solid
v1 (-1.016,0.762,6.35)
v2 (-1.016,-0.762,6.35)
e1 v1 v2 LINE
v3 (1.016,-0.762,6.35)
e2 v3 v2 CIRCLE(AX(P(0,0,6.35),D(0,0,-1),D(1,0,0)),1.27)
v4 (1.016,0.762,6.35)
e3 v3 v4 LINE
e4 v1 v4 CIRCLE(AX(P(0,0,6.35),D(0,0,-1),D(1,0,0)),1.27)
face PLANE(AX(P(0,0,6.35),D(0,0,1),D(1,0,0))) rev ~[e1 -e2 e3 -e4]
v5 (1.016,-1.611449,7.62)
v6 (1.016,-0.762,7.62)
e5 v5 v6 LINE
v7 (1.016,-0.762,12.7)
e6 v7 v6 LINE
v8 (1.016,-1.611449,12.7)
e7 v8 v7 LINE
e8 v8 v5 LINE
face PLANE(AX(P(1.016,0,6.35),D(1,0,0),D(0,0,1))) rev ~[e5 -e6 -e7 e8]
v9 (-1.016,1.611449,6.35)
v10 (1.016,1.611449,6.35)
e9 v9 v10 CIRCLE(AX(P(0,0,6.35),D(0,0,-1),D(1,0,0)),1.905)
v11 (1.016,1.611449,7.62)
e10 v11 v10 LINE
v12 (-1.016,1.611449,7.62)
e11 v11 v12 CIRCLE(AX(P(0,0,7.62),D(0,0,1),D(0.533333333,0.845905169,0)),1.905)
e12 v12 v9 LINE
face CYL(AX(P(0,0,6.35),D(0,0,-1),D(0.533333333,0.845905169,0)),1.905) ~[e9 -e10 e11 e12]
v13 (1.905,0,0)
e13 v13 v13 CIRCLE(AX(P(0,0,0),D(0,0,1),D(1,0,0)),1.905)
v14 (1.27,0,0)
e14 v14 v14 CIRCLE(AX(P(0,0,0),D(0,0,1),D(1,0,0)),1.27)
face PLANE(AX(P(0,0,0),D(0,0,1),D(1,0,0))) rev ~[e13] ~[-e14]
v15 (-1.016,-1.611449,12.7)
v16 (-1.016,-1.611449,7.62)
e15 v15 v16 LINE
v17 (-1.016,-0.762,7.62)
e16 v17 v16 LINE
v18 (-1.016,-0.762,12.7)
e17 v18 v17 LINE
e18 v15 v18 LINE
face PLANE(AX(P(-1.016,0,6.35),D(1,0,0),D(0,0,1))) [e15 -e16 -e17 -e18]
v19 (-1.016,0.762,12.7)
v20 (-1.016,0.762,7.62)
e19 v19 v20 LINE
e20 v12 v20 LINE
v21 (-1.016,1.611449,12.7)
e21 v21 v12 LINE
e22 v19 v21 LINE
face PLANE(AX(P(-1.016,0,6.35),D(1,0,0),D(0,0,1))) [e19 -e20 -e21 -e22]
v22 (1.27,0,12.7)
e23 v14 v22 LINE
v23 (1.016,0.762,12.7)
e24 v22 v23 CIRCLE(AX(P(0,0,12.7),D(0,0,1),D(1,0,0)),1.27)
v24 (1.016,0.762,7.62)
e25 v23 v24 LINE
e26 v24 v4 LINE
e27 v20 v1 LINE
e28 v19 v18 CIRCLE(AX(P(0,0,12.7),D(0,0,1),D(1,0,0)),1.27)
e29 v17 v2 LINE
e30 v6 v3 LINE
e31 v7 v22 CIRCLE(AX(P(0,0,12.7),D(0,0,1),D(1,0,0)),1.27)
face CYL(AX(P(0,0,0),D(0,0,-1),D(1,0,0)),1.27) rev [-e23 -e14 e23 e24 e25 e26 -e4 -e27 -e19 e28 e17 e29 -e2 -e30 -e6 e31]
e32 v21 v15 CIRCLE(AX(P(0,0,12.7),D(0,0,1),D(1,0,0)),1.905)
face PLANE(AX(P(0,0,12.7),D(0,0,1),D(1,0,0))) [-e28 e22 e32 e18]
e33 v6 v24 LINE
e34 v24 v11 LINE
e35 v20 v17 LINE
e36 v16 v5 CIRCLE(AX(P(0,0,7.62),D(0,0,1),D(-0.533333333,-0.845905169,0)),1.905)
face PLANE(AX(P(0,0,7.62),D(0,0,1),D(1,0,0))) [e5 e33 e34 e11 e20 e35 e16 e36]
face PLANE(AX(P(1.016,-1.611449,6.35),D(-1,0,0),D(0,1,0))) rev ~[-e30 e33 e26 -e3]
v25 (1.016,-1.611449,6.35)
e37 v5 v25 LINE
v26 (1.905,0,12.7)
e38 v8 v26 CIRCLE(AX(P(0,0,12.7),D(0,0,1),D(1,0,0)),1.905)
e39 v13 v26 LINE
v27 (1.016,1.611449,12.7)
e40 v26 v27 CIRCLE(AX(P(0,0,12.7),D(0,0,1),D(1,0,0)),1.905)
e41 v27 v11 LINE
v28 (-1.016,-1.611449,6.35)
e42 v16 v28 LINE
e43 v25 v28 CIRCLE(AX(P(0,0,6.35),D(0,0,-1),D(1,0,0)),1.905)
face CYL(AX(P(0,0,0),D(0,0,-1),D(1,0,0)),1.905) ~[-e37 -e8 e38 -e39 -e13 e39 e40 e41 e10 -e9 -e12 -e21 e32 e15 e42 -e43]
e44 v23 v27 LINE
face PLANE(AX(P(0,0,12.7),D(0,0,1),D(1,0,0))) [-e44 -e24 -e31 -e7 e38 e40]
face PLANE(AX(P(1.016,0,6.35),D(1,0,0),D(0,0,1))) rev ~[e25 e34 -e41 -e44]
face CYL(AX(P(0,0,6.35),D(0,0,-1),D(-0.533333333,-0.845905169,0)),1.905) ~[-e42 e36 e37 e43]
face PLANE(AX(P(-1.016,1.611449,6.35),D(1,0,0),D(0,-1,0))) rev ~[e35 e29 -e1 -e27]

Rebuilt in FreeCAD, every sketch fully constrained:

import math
import FreeCAD as App
import Part
import Sketcher
Q = App.Units.Quantity

doc = App.newDocument("Part")
body = doc.addObject("PartDesign::Body", "Body")

# Sketch on XY plane
sketch1 = body.newObject("Sketcher::SketchObject", "Sketch")
sketch1.AttachmentSupport = (doc.getObject("XY_Plane"), [""])
sketch1.MapMode = "FlatFace"
sketch1.addGeometry(Part.Circle(App.Vector(0, 0, 0), App.Vector(0, 0, 1), 1.9), False)
sketch1.addGeometry(Part.Circle(App.Vector(0, 0, 0), App.Vector(0, 0, 1), 1.3), False)
sketch1.addConstraint(Sketcher.Constraint("Coincident", 0, 3, -1, 1))
sketch1.addConstraint(Sketcher.Constraint("Coincident", 1, 3, -1, 1))
sketch1.addConstraint(Sketcher.Constraint("Diameter", 1, Q("0.1 in")))
sketch1.addConstraint(Sketcher.Constraint("Diameter", 0, Q("0.15 in")))
pad1 = body.newObject("PartDesign::Pad", "Pad")
pad1.Profile = sketch1
pad1.Length = Q("0.5 in")

# Sketch on XZ plane
sketch2 = body.newObject("Sketcher::SketchObject", "Sketch001")
sketch2.AttachmentSupport = (doc.getObject("XZ_Plane"), [""])
sketch2.MapMode = "FlatFace"
sketch2.addGeometry(Part.LineSegment(App.Vector(-1, 20.1, 0), App.Vector(-1, 6.3, 0)), False)
sketch2.addGeometry(Part.LineSegment(App.Vector(-1, 6.3, 0), App.Vector(1, 6.3, 0)), False)
sketch2.addGeometry(Part.LineSegment(App.Vector(1, 6.3, 0), App.Vector(1, 20.1, 0)), False)
sketch2.addGeometry(Part.LineSegment(App.Vector(1, 20.1, 0), App.Vector(-1, 20.1, 0)), False)
sketch2.addConstraint(Sketcher.Constraint("Coincident", 0, 2, 1, 1))
sketch2.addConstraint(Sketcher.Constraint("Coincident", 1, 2, 2, 1))
sketch2.addConstraint(Sketcher.Constraint("Coincident", 2, 2, 3, 1))
sketch2.addConstraint(Sketcher.Constraint("Coincident", 3, 2, 0, 1))
sketch2.addConstraint(Sketcher.Constraint("Vertical", 0))
sketch2.addConstraint(Sketcher.Constraint("Horizontal", 1))
sketch2.addConstraint(Sketcher.Constraint("Vertical", 2))
sketch2.addConstraint(Sketcher.Constraint("Horizontal", 3))
sketch2.addConstraint(Sketcher.Constraint("DistanceX", 1, 1, 1, 2, Q("0.08 in")))
sketch2.addConstraint(Sketcher.Constraint("DistanceX", 0, 2, -1, 1, Q("0.04 in")))
sketch2.addConstraint(Sketcher.Constraint("DistanceY", -1, 1, 0, 2, Q("0.25 in")))
sketch2.addConstraint(Sketcher.Constraint("DistanceY", 0, 2, 0, 1, Q("13.711051 mm")))
pocket1 = body.newObject("PartDesign::Pocket", "Pocket")
pocket1.Profile = sketch2
pocket1.Length = Q("1 in")
pocket1.Midplane = True

# Sketch on XY plane
sketch3 = body.newObject("Sketcher::SketchObject", "Sketch002")
sketch3.AttachmentSupport = (doc.getObject("XY_Plane"), [""])
sketch3.MapMode = "FlatFace"
sketch3.AttachmentOffset = App.Placement(App.Vector(0, 0, 0.25 * 25.4), App.Rotation())
sketch3.addGeometry(Part.LineSegment(App.Vector(-1, 1.6, 0), App.Vector(-1, -1.6, 0)), False)
sketch3.addGeometry(Part.ArcOfCircle(Part.Circle(App.Vector(0, 0, 0), App.Vector(0, 0, 1), 1.9), math.radians(-122), math.radians(-58)), False)
sketch3.addGeometry(Part.LineSegment(App.Vector(1, -1.6, 0), App.Vector(1, 1.6, 0)), False)
sketch3.addGeometry(Part.ArcOfCircle(Part.Circle(App.Vector(0, 0, 0), App.Vector(0, 0, 1), 1.9), math.radians(58), math.radians(122)), False)
sketch3.addConstraint(Sketcher.Constraint("Coincident", 0, 2, 1, 1))
sketch3.addConstraint(Sketcher.Constraint("Coincident", 1, 2, 2, 1))
sketch3.addConstraint(Sketcher.Constraint("Coincident", 2, 2, 3, 1))
sketch3.addConstraint(Sketcher.Constraint("Coincident", 3, 2, 0, 1))
sketch3.addConstraint(Sketcher.Constraint("Vertical", 0))
sketch3.addConstraint(Sketcher.Constraint("Vertical", 2))
sketch3.addConstraint(Sketcher.Constraint("Coincident", 1, 3, -1, 1))
sketch3.addConstraint(Sketcher.Constraint("Coincident", 3, 3, -1, 1))
sketch3.addConstraint(Sketcher.Constraint("Equal", 1, 3))
sketch3.addConstraint(Sketcher.Constraint("Horizontal", 0, 2, 1, 2))
sketch3.addConstraint(Sketcher.Constraint("Radius", 1, Q("0.075 in")))
sketch3.addConstraint(Sketcher.Constraint("DistanceX", 0, 2, -1, 1, Q("0.04 in")))
pad2 = body.newObject("PartDesign::Pad", "Pad001")
pad2.Profile = sketch3
pad2.Length = Q("0.05 in")

doc.recompute()
